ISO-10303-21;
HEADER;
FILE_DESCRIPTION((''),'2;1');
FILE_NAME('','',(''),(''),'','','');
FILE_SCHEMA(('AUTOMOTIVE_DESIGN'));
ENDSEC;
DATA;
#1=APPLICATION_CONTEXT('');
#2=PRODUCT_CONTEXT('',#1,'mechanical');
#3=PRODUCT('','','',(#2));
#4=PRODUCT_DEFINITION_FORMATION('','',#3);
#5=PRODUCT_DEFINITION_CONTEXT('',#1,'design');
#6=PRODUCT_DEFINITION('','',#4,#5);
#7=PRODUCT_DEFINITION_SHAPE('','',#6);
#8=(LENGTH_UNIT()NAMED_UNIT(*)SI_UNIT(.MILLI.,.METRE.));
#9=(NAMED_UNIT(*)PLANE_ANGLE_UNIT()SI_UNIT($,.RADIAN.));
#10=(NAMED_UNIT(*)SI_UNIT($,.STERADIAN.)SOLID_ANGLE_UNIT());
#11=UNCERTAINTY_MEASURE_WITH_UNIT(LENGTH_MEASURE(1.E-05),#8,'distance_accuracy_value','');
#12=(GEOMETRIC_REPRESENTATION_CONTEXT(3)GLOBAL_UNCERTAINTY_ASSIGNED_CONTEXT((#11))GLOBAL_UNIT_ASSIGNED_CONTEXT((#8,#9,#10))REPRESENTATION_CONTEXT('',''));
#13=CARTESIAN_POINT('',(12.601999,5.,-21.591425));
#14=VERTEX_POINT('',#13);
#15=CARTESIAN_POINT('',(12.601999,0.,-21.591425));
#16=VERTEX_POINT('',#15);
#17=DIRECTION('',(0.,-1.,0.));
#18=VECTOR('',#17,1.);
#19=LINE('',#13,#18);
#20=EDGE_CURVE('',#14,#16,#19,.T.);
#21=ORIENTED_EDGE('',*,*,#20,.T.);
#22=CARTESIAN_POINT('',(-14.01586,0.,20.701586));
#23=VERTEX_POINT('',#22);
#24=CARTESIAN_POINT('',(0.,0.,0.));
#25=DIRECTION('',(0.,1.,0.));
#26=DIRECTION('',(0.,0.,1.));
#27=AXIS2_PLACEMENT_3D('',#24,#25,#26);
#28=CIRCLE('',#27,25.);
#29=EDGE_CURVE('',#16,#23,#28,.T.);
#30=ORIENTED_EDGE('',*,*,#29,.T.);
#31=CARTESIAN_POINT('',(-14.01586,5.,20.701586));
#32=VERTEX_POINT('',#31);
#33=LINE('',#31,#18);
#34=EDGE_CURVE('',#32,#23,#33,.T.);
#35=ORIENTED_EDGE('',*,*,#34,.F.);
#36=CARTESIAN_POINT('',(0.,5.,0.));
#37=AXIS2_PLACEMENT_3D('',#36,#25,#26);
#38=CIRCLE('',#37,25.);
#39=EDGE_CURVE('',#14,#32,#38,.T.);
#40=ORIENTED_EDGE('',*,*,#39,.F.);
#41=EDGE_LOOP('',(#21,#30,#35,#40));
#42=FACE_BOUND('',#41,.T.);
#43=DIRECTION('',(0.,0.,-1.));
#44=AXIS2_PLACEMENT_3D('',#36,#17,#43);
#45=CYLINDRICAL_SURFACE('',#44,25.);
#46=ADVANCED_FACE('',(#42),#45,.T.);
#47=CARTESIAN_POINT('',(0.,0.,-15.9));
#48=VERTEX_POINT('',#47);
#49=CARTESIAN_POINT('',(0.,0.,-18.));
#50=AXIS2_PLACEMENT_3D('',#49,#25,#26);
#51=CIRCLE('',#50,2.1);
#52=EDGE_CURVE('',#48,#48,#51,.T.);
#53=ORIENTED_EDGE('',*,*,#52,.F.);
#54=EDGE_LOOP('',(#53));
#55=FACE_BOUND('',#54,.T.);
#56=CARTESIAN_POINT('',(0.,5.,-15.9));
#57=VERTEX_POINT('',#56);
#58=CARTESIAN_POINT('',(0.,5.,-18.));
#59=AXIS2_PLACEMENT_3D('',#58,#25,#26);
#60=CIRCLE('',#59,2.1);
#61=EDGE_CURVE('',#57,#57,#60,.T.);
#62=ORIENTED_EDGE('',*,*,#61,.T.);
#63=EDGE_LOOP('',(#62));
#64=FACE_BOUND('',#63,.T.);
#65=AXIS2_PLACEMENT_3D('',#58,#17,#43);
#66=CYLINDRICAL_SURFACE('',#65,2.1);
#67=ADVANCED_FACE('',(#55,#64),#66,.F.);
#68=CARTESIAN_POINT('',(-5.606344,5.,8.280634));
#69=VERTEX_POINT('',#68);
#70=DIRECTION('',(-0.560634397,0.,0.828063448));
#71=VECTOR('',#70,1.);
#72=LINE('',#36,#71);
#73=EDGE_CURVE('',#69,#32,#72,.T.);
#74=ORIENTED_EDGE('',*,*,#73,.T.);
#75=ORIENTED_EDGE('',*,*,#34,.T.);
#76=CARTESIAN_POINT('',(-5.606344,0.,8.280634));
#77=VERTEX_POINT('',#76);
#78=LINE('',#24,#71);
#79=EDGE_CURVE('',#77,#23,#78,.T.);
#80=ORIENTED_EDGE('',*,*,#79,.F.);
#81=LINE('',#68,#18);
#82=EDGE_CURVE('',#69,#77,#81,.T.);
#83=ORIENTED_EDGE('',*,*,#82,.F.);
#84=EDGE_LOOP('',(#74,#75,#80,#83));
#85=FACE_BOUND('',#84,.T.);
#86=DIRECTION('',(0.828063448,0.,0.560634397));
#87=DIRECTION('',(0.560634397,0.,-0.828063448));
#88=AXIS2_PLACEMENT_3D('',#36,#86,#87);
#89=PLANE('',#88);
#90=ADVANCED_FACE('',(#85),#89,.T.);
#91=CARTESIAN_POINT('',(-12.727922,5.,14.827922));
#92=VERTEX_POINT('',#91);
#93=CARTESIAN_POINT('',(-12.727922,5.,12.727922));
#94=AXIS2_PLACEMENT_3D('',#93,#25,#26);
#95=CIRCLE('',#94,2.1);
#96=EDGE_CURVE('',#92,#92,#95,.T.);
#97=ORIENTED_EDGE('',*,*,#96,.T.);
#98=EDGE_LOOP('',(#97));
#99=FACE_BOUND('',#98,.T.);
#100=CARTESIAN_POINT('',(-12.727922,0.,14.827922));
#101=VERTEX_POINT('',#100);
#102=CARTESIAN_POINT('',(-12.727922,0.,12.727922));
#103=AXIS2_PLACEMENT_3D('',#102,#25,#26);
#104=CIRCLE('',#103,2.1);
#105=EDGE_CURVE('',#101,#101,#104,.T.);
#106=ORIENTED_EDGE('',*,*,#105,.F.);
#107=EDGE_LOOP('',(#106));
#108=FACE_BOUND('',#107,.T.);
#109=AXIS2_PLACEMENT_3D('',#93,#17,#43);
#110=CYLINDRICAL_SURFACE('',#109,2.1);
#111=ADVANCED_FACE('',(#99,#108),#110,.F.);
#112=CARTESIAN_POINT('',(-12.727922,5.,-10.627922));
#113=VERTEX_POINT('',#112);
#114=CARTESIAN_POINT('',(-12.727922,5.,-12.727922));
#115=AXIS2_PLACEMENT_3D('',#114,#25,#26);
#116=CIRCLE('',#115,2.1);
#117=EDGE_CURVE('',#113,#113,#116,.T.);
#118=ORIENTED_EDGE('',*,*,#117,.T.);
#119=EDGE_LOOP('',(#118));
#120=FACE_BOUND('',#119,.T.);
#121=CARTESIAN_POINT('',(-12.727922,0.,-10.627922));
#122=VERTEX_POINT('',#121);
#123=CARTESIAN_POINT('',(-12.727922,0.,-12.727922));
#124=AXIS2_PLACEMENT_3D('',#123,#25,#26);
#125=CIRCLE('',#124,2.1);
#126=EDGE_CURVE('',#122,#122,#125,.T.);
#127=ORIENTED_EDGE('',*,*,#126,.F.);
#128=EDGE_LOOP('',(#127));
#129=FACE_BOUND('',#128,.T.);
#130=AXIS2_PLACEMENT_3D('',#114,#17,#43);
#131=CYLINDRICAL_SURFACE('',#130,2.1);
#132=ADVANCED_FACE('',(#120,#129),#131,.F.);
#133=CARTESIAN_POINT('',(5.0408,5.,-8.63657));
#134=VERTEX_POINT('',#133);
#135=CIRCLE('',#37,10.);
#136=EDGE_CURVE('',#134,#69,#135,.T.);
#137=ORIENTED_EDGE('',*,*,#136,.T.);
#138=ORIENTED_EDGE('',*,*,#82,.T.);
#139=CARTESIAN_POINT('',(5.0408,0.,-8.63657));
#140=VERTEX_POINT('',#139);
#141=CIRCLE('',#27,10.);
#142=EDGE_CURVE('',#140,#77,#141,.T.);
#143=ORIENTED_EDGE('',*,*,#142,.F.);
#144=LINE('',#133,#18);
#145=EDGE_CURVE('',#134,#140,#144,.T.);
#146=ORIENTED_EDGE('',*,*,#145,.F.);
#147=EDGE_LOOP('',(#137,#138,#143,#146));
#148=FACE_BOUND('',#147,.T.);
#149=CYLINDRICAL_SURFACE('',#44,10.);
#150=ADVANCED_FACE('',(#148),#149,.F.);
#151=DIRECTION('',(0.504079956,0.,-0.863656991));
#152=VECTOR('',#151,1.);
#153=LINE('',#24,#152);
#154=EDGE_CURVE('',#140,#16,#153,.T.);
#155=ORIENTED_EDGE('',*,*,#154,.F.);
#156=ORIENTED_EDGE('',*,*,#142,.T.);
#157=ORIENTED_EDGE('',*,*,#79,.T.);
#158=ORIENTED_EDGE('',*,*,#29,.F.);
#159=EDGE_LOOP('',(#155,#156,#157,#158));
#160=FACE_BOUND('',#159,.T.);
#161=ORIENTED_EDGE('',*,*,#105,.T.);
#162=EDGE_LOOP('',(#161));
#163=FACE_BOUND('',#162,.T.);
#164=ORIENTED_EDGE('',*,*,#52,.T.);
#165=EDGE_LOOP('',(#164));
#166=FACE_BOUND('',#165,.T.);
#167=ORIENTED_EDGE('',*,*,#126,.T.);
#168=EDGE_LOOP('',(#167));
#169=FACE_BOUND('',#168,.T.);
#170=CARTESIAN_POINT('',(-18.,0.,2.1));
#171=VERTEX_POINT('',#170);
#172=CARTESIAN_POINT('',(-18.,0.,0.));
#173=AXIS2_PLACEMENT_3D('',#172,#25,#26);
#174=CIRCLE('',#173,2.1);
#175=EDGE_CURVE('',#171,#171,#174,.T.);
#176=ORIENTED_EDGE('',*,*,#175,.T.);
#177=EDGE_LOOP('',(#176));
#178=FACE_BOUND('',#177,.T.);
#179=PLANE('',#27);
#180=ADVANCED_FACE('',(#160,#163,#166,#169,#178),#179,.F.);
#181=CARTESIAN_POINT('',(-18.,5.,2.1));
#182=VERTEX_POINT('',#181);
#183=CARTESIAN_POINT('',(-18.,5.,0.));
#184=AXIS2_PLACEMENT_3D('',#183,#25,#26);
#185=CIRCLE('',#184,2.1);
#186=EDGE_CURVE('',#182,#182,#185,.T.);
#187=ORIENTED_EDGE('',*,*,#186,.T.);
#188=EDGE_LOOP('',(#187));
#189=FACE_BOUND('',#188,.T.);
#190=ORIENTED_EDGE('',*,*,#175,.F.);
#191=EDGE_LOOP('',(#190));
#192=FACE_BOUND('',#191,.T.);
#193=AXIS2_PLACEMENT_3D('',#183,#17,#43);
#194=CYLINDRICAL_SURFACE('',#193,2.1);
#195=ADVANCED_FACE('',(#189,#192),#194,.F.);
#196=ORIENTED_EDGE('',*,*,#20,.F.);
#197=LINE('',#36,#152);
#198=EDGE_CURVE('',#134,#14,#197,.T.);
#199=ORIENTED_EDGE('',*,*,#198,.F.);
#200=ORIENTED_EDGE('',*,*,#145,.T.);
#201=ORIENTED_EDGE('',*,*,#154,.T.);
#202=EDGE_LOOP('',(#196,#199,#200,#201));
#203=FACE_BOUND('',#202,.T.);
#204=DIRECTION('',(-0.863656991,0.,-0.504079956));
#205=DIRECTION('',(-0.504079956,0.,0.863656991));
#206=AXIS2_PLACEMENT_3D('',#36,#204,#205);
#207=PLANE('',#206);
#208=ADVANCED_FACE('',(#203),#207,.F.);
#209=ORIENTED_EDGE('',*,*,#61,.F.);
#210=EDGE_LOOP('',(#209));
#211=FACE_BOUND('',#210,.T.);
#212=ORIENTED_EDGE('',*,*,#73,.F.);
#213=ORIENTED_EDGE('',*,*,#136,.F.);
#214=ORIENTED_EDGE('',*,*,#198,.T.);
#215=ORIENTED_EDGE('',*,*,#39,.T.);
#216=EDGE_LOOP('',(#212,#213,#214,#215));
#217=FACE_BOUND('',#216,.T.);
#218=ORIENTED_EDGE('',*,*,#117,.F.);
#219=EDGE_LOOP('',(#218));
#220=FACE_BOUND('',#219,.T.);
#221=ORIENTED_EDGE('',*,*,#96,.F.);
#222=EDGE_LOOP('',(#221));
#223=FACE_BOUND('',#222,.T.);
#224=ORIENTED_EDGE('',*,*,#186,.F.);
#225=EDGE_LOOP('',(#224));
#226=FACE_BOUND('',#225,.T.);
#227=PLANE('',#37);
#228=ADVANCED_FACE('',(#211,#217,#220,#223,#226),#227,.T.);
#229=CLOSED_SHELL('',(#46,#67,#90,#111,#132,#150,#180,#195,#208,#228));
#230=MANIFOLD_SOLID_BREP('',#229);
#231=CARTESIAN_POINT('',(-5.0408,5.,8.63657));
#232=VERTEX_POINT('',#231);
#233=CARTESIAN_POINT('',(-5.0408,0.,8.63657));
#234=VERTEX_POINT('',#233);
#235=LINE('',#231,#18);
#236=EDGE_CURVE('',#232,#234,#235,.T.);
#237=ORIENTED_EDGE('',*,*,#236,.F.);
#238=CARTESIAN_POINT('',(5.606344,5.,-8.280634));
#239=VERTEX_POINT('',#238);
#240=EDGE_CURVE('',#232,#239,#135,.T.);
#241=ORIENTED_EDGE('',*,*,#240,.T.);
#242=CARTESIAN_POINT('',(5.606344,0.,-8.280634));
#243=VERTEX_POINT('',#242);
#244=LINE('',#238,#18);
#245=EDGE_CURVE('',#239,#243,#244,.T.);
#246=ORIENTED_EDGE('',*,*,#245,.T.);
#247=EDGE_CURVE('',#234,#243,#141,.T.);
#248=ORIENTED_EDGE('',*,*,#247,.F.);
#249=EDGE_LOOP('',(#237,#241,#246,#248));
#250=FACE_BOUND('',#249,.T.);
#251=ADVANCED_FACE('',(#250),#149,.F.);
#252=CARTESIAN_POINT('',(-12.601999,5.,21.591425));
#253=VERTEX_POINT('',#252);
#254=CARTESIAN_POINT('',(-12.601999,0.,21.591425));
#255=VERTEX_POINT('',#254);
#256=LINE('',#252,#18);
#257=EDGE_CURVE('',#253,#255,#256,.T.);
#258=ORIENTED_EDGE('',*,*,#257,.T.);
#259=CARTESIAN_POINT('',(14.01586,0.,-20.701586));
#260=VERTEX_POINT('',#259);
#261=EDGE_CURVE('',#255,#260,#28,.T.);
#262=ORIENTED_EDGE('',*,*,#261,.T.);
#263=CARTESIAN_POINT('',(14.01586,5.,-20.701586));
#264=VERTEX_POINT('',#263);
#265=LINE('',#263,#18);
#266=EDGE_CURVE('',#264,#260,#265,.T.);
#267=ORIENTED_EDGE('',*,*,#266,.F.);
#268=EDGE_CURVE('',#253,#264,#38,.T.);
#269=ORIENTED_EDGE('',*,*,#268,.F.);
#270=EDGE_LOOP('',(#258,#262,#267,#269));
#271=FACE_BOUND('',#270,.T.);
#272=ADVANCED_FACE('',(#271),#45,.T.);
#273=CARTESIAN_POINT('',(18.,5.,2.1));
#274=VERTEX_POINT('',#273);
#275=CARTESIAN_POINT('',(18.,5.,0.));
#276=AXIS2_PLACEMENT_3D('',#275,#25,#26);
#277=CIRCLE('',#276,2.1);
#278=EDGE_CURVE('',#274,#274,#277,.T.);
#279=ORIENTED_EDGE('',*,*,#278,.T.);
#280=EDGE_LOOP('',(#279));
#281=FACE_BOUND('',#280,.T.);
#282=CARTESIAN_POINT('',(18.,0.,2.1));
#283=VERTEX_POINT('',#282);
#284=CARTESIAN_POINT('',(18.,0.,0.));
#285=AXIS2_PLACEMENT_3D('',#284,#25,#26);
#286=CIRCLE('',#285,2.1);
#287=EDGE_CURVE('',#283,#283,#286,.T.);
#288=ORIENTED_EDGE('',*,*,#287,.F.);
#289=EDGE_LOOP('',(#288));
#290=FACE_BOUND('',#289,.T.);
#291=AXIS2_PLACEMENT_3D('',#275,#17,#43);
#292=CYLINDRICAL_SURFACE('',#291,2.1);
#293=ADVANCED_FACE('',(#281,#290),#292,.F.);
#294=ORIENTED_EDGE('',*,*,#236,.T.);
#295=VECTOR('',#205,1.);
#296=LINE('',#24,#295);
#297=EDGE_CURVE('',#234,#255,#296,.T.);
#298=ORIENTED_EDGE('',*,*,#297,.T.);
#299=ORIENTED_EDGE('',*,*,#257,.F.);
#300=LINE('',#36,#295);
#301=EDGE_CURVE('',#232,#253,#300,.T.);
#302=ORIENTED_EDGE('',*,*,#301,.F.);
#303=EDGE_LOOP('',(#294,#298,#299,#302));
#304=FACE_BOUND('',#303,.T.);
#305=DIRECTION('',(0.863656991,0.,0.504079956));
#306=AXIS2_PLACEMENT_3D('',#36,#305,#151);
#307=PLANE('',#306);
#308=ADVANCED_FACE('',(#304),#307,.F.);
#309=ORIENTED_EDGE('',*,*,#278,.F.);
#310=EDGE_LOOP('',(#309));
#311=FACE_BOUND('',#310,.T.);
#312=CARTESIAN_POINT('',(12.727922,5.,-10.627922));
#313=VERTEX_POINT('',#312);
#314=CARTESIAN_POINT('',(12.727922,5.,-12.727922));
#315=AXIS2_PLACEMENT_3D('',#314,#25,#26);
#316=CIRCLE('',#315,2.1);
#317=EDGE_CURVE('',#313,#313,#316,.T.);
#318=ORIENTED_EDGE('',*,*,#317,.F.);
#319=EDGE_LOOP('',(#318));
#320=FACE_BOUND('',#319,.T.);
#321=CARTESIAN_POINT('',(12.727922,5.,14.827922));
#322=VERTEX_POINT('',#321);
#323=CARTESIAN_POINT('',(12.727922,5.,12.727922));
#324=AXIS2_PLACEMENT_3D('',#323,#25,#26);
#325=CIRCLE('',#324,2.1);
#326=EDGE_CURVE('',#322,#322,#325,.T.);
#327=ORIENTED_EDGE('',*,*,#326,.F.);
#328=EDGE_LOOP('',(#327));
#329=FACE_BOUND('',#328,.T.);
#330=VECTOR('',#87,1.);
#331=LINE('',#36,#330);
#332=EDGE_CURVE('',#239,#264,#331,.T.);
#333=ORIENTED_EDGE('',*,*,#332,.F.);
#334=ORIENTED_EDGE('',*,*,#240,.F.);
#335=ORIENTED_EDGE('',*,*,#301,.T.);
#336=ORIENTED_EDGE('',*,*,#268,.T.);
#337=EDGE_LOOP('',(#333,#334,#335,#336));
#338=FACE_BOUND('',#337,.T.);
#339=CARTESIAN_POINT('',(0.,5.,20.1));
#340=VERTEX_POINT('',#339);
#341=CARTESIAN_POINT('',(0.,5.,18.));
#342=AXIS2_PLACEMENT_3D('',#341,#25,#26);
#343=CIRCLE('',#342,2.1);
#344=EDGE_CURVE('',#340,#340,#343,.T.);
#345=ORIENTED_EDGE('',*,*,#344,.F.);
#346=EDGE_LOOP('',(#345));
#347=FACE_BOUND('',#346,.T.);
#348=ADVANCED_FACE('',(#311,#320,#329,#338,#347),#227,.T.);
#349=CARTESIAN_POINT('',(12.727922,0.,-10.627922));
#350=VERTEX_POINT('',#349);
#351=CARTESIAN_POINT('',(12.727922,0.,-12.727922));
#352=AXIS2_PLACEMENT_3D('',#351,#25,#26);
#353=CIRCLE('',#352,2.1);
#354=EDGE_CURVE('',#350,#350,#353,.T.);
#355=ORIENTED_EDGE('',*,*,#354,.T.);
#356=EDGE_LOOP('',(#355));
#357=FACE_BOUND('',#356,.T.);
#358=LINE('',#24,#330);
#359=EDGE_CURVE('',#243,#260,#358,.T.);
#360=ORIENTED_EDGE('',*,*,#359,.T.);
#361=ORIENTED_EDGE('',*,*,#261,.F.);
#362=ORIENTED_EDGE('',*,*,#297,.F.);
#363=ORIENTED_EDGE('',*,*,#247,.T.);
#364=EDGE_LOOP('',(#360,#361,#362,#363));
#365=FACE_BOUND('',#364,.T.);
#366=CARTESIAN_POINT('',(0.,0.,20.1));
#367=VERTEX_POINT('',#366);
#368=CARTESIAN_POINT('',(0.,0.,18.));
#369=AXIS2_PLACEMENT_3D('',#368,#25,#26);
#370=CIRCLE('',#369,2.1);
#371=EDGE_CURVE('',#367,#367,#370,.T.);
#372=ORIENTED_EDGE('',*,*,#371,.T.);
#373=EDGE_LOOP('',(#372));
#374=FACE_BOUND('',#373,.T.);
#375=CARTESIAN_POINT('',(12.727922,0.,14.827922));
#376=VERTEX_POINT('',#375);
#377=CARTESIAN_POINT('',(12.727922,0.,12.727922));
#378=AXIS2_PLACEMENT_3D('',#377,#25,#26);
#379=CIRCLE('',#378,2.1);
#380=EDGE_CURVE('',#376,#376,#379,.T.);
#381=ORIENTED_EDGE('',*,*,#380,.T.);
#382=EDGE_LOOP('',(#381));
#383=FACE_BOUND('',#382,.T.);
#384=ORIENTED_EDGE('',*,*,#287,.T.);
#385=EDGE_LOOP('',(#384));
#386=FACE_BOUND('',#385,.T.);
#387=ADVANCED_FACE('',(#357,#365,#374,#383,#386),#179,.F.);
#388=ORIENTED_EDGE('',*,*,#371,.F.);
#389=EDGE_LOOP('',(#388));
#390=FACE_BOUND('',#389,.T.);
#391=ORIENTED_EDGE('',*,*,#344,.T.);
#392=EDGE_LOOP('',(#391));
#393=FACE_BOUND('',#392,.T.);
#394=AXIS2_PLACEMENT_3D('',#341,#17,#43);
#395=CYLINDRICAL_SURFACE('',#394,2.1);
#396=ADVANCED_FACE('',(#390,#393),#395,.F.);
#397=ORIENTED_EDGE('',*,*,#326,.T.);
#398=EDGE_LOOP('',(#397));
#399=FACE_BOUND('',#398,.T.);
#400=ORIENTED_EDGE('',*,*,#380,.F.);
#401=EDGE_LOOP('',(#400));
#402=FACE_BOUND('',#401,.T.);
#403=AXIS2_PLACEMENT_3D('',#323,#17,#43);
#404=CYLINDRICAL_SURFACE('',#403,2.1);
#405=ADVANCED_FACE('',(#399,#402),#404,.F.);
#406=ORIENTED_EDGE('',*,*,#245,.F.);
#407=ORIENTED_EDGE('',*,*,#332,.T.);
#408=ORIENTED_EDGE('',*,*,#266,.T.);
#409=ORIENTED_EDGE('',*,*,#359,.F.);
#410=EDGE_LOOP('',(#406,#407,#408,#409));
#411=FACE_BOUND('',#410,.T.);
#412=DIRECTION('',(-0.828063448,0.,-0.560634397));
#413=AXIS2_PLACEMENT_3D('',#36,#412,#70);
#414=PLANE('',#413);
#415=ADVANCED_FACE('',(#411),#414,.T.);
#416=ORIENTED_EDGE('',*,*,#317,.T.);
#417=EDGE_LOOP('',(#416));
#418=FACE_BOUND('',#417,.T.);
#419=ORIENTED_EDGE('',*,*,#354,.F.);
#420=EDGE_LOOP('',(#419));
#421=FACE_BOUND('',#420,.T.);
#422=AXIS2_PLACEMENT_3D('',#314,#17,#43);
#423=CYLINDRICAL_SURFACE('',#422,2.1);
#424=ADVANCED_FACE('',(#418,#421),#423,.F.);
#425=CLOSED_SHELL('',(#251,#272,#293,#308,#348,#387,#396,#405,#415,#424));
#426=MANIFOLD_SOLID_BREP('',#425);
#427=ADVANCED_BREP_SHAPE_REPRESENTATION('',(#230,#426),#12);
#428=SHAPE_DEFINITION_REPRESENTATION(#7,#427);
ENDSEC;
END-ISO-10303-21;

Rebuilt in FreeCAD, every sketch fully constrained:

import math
import FreeCAD as App
import Part
import Sketcher
from FreeCAD import Vector
Q = App.Units.Quantity

doc = App.newDocument("Part")
body = doc.addObject("PartDesign::Body", "Body")

# Sketch on XZ plane
sketch1 = body.newObject("Sketcher::SketchObject", "Sketch")
sketch1.AttachmentSupport = (doc.getObject("XZ_Plane"), [""])
sketch1.MapMode = "FlatFace"
sketch1.addGeometry([
    Part.LineSegment(Vector(-14, 20.7, 0), Vector(-5.6, 8.3, 0)),  # 0
    Part.ArcOfCircle(Part.Circle(Vector(0, 0, 0), Vector(0, 0, 1), 10), math.radians(124), math.radians(300)),  # 1
    Part.LineSegment(Vector(5, -8.6, 0), Vector(12.6, -21.6, 0)),  # 2
    Part.ArcOfCircle(Part.Circle(Vector(0, 0, 0), Vector(0, 0, 1), 25), math.radians(124), math.radians(300)),  # 3
    Part.Circle(Vector(-12.7, 12.7, 0), Vector(0, 0, 1), 2.1),  # 4
    Part.Circle(Vector(-18, 0, 0), Vector(0, 0, 1), 2.1),  # 5
    Part.Circle(Vector(-12.7, -12.7, 0), Vector(0, 0, 1), 2.1),  # 6
    Part.Circle(Vector(0, -18, 0), Vector(0, 0, 1), 2.1),  # 7
], False)
sketch1.addConstraint([
    Sketcher.Constraint("Coincident", 0, 2, 1, 1),
    Sketcher.Constraint("Coincident", 1, 2, 2, 1),
    Sketcher.Constraint("Coincident", 2, 2, 3, 2),
    Sketcher.Constraint("Coincident", 3, 1, 0, 1),
    Sketcher.Constraint("Coincident", 1, 3, -1, 1),
    Sketcher.Constraint("Coincident", 3, 3, -1, 1),
    Sketcher.Constraint("Equal", 4, 5),
    Sketcher.Constraint("Equal", 5, 6),
    Sketcher.Constraint("Equal", 6, 7),
    Sketcher.Constraint("Symmetric", 4, 3, 6, 3, -1),
    Sketcher.Constraint("PointOnObject", 5, 3, -1),
    Sketcher.Constraint("PointOnObject", 7, 3, -2),
    Sketcher.Constraint("Radius", 1, Q("10 mm")),
    Sketcher.Constraint("Radius", 3, Q("25 mm")),
    Sketcher.Constraint("Diameter", 4, Q("4.2 mm")),
    Sketcher.Constraint("DistanceX", 5, 3, -1, 1, Q("18 mm")),
    Sketcher.Constraint("DistanceY", 7, 3, -1, 1, Q("18 mm")),
    Sketcher.Constraint("DistanceX", -1, 1, 2, 2, Q("12.601999 mm")),
    Sketcher.Constraint("DistanceX", -1, 1, 1, 2, Q("5.0408 mm")),
    Sketcher.Constraint("DistanceX", 3, 1, -1, 1, Q("14.01586 mm")),
    Sketcher.Constraint("DistanceX", 4, 3, 0, 2, Q("7.121578 mm")),
    Sketcher.Constraint("DistanceX", 6, 3, 1, 2, Q("17.768722 mm")),
    Sketcher.Constraint("DistanceY", -1, 1, 4, 3, Q("12.727922 mm")),
])
pad1 = body.newObject("PartDesign::Pad", "Pad")
pad1.Profile = sketch1
pad1.Length = 5
pad1.Reversed = True
body2 = doc.addObject("PartDesign::Body", "Body001")

# Sketch on XZ plane
sketch2 = body2.newObject("Sketcher::SketchObject", "Sketch001")
sketch2.AttachmentSupport = (doc.getObject("XZ_Plane001"), [""])
sketch2.MapMode = "FlatFace"
sketch2.addGeometry([
    Part.ArcOfCircle(Part.Circle(Vector(0, 0, 0), Vector(0, 0, 1), 10), math.radians(0), math.radians(120)),  # 0
    Part.LineSegment(Vector(-5, 8.6, 0), Vector(-12.6, 21.6, 0)),  # 1
    Part.ArcOfCircle(Part.Circle(Vector(0, 0, 0), Vector(0, 0, 1), 25), math.radians(0), math.radians(120)),  # 2
    Part.ArcOfCircle(Part.Circle(Vector(0, 0, 0), Vector(0, 0, 1), 25), math.radians(-56), math.radians(0)),  # 3
    Part.LineSegment(Vector(14, -20.7, 0), Vector(5.6, -8.3, 0)),  # 4
    Part.ArcOfCircle(Part.Circle(Vector(0, 0, 0), Vector(0, 0, 1), 10), math.radians(-56), math.radians(0)),  # 5
    Part.Circle(Vector(0, 18, 0), Vector(0, 0, 1), 2.1),  # 6
    Part.Circle(Vector(12.7, 12.7, 0), Vector(0, 0, 1), 2.1),  # 7
    Part.Circle(Vector(18, 0, 0), Vector(0, 0, 1), 2.1),  # 8
    Part.Circle(Vector(12.7, -12.7, 0), Vector(0, 0, 1), 2.1),  # 9
], False)
sketch2.addConstraint([
    Sketcher.Constraint("Coincident", 0, 2, 1, 1),
    Sketcher.Constraint("Coincident", 1, 2, 2, 2),
    Sketcher.Constraint("Tangent", 2, 1, 3, 2),
    Sketcher.Constraint("Coincident", 3, 1, 4, 1),
    Sketcher.Constraint("Coincident", 4, 2, 5, 1),
    Sketcher.Constraint("Tangent", 5, 2, 0, 1),
    Sketcher.Constraint("Coincident", 0, 3, -1, 1),
    Sketcher.Constraint("Coincident", 2, 3, -1, 1),
    Sketcher.Constraint("Equal", 2, 3),
    Sketcher.Constraint("Equal", 0, 5),
    Sketcher.Constraint("Equal", 6, 7),
    Sketcher.Constraint("Equal", 7, 8),
    Sketcher.Constraint("Equal", 8, 9),
    Sketcher.Constraint("Symmetric", 7, 3, 9, 3, -1),
    Sketcher.Constraint("PointOnObject", 6, 3, -2),
    Sketcher.Constraint("PointOnObject", 8, 3, -1),
    Sketcher.Constraint("PointOnObject", 2, 1, -1),
    Sketcher.Constraint("PointOnObject", 5, 2, -1),
    Sketcher.Constraint("Radius", 0, Q("10 mm")),
    Sketcher.Constraint("Radius", 2, Q("25 mm")),
    Sketcher.Constraint("Diameter", 6, Q("4.2 mm")),
    Sketcher.Constraint("DistanceY", -1, 1, 6, 3, Q("18 mm")),
    Sketcher.Constraint("DistanceX", -1, 1, 8, 3, Q("18 mm")),
    Sketcher.Constraint("DistanceX", 1, 2, -1, 1, Q("12.601999 mm")),
    Sketcher.Constraint("DistanceX", 0, 2, -1, 1, Q("5.0408 mm")),
    Sketcher.Constraint("DistanceX", -1, 1, 3, 1, Q("14.01586 mm")),
    Sketcher.Constraint("DistanceX", 4, 2, 9, 3, Q("7.121578 mm")),
    Sketcher.Constraint("DistanceX", -1, 1, 7, 3, Q("12.727922 mm")),
    Sketcher.Constraint("DistanceY", -1, 1, 7, 3, Q("12.727922 mm")),
])
pad2 = body2.newObject("PartDesign::Pad", "Pad001")
pad2.Profile = sketch2
pad2.Length = 5
pad2.Reversed = True

doc.recompute()
